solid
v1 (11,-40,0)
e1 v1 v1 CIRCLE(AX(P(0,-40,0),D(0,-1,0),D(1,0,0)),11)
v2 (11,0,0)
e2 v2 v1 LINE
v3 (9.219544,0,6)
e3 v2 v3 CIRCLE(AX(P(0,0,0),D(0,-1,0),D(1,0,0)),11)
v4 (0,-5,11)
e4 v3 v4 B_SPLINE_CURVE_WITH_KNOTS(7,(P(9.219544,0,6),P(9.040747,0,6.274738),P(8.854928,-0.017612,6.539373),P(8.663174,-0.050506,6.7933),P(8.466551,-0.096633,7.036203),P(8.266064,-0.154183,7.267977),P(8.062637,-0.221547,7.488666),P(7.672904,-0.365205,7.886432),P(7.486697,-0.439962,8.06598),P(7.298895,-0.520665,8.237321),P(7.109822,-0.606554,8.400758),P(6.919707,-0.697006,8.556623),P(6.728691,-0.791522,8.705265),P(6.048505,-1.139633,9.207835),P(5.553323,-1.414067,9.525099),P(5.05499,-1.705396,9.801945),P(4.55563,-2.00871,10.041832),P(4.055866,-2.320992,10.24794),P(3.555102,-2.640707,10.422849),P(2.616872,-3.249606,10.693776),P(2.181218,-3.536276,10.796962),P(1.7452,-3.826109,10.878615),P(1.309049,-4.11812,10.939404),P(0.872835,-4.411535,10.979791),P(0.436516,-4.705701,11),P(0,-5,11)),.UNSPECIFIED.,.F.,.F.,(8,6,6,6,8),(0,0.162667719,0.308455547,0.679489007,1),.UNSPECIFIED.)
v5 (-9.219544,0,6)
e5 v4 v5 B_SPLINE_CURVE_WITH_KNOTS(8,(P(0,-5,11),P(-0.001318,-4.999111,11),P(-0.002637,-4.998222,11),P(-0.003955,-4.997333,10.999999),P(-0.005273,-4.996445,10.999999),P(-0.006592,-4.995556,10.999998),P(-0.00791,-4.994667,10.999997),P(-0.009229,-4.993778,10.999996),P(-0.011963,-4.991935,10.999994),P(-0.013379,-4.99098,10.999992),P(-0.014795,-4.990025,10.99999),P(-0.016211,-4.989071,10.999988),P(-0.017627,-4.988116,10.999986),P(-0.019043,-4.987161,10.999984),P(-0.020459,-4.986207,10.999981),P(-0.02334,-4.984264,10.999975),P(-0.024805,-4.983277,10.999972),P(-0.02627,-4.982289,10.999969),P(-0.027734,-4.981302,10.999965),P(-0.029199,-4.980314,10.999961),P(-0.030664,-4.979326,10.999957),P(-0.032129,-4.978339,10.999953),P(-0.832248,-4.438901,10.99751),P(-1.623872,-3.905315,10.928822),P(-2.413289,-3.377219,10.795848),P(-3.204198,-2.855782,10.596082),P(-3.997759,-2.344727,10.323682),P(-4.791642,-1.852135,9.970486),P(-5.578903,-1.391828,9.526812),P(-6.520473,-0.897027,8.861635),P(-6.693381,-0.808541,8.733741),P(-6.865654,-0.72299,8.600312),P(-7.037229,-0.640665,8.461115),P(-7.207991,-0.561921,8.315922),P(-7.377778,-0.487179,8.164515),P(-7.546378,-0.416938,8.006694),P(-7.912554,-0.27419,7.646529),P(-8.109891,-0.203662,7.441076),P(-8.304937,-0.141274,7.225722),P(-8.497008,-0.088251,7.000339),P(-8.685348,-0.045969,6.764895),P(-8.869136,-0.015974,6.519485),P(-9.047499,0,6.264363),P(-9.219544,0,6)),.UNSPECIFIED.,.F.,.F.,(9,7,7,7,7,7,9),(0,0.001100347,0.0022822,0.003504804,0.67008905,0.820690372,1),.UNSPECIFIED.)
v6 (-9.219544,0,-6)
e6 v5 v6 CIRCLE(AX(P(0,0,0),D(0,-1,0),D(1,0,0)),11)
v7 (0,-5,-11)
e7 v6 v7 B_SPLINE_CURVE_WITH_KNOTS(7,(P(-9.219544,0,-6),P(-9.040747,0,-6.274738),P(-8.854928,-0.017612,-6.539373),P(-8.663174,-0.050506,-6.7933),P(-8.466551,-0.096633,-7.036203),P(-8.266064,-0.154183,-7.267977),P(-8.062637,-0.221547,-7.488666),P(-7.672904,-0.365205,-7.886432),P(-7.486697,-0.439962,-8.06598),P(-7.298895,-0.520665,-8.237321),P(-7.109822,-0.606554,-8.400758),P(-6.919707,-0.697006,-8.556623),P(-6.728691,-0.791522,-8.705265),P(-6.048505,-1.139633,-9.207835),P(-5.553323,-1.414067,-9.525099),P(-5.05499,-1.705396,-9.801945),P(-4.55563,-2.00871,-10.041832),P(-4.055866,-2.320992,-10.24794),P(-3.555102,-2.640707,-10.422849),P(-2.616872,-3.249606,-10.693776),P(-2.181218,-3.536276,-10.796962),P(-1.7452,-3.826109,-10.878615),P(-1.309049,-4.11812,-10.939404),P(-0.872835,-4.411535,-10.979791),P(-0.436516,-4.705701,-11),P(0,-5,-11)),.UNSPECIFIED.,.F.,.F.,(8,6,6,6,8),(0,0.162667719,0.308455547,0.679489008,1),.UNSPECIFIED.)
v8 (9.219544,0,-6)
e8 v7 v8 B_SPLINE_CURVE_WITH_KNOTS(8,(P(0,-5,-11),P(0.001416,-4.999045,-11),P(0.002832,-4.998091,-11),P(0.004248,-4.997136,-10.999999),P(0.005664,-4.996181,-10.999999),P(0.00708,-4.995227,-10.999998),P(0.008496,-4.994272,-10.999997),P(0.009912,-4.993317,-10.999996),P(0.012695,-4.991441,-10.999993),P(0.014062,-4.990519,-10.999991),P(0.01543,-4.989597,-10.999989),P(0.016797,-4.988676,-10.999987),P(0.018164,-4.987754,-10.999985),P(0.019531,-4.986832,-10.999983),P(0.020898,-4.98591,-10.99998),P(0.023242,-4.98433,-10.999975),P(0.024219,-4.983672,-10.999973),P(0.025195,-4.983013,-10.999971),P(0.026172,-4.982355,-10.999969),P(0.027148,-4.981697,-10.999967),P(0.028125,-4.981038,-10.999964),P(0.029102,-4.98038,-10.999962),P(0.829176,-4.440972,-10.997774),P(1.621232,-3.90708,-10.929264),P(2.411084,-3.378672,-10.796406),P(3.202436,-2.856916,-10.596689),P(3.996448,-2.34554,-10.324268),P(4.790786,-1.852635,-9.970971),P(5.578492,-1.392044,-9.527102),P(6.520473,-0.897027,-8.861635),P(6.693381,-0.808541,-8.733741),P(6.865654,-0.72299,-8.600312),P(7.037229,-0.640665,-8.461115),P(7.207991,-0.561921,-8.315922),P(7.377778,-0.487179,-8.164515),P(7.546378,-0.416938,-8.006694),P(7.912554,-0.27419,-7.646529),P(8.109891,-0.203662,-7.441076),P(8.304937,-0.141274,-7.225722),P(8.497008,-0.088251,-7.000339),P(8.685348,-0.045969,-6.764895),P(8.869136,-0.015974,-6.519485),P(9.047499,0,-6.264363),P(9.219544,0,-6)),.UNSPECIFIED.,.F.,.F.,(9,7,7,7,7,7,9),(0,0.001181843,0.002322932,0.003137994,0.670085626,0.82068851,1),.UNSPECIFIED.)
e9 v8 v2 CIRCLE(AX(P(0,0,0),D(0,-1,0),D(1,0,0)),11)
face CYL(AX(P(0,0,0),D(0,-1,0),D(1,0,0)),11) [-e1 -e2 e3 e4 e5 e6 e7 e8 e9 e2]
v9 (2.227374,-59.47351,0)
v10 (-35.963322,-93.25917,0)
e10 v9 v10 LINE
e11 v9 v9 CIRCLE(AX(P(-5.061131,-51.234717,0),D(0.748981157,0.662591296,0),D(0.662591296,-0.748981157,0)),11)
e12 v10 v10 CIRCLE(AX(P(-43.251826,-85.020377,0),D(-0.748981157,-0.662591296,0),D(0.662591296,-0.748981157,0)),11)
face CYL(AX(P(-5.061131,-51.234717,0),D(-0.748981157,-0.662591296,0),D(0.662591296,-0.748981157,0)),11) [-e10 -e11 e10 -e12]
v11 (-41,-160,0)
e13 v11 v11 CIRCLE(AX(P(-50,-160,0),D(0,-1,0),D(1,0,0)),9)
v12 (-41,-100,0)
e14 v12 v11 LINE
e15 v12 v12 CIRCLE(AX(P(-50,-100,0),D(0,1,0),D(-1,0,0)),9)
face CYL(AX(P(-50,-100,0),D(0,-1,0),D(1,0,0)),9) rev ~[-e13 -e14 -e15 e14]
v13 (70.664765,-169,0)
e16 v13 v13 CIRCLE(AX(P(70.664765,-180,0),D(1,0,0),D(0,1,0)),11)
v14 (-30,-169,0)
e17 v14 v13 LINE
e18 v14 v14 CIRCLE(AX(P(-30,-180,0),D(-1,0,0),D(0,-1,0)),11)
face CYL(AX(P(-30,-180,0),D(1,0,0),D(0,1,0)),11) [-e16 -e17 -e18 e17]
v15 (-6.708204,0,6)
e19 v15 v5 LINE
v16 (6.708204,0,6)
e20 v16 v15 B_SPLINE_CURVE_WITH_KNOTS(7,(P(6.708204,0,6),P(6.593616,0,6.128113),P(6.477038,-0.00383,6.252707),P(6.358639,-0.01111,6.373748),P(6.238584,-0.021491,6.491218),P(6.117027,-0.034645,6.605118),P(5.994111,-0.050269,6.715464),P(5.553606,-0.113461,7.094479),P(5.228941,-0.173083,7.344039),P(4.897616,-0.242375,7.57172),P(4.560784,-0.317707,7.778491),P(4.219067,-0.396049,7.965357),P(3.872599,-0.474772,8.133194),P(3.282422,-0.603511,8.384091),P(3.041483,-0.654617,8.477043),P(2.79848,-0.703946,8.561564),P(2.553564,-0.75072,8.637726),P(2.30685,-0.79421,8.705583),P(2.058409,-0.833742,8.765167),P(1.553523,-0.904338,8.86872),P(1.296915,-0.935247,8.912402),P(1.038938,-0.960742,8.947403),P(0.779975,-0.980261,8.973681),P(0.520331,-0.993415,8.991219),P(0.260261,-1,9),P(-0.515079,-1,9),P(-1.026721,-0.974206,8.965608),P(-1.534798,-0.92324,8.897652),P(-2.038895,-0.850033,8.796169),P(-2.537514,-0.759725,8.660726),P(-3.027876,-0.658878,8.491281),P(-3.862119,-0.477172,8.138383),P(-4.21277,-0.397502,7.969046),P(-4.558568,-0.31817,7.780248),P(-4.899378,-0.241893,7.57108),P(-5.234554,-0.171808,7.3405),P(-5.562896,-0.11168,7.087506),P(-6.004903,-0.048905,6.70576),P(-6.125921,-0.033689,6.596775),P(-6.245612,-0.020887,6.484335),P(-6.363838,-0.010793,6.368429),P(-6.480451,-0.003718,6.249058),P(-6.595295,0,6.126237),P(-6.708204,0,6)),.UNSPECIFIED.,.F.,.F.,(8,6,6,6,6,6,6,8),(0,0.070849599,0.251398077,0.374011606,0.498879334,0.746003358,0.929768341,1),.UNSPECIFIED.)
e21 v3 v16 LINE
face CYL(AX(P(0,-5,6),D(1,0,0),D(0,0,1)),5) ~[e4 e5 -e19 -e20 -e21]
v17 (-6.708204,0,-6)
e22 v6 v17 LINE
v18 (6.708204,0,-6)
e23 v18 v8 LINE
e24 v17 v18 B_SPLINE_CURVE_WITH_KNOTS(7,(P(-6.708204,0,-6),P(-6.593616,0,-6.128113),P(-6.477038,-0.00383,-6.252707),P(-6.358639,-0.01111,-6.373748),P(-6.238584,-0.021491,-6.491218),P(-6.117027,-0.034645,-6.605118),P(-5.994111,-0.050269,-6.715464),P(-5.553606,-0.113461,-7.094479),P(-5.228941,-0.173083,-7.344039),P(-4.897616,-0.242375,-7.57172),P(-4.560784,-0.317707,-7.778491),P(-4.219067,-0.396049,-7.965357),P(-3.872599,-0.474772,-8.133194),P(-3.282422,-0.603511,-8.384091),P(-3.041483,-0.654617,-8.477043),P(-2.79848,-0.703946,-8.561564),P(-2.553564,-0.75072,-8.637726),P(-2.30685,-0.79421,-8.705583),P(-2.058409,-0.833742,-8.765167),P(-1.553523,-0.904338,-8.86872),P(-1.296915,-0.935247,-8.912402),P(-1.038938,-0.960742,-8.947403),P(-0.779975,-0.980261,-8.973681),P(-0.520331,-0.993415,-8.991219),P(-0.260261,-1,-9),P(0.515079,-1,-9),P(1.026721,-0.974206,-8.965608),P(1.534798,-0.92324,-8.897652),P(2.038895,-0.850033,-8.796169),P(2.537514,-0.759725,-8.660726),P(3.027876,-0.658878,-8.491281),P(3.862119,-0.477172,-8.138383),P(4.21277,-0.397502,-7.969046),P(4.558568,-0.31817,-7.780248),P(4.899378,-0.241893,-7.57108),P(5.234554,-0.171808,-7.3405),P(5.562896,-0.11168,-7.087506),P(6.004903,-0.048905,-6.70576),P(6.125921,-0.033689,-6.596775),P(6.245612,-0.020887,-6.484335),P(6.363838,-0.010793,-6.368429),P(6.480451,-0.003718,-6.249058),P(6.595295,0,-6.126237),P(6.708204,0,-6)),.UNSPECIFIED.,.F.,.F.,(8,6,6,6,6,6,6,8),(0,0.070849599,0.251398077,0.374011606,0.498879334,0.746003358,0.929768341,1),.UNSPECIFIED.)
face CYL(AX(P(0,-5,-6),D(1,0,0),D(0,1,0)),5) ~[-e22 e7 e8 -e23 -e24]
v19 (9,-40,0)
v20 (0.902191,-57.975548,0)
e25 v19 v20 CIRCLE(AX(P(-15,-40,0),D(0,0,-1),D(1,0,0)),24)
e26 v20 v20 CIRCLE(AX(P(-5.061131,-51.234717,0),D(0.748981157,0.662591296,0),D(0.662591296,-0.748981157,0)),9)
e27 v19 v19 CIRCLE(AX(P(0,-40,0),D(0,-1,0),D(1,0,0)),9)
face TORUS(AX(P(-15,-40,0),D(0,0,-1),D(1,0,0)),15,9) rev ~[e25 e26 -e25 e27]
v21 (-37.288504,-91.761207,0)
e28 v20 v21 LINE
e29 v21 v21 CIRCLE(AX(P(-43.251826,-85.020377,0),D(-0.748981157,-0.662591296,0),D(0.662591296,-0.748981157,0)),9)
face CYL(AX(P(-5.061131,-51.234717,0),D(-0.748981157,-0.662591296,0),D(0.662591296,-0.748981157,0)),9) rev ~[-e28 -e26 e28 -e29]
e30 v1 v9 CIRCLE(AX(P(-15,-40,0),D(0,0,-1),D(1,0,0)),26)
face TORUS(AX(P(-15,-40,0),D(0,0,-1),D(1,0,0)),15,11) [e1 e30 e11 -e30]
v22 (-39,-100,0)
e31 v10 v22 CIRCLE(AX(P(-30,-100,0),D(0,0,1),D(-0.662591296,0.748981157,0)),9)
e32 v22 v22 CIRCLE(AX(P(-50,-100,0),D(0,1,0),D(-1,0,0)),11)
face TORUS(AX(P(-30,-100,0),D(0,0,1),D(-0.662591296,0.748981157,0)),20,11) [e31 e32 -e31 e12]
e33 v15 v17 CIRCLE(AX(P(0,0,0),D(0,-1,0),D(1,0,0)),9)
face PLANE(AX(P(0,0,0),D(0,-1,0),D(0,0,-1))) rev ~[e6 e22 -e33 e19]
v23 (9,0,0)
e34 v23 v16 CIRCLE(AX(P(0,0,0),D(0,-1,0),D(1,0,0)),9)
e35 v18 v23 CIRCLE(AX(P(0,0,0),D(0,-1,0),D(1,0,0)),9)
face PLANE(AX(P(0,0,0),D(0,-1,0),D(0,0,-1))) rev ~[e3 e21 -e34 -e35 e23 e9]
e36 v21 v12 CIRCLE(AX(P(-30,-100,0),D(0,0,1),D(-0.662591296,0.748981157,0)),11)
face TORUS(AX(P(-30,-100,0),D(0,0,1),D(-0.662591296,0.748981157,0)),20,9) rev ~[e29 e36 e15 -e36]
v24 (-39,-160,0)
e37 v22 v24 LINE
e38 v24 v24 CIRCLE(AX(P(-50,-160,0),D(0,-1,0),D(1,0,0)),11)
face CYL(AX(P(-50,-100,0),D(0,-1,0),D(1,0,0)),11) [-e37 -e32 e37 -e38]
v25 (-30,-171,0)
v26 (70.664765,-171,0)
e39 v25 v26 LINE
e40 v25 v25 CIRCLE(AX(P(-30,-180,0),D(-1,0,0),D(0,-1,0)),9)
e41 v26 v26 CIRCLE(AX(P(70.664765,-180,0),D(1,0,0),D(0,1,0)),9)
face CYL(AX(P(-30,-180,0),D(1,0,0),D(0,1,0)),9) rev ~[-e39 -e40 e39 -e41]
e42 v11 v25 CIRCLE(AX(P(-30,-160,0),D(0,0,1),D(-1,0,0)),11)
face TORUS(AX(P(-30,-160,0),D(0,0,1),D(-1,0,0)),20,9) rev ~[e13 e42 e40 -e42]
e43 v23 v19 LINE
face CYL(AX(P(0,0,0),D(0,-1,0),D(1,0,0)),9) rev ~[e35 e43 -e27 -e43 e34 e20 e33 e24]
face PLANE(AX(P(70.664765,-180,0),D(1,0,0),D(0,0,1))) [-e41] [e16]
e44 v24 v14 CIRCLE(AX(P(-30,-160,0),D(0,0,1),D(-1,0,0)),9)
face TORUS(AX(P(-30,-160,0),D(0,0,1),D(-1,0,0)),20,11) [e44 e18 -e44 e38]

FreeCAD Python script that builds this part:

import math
import FreeCAD as App
import Part
import Sketcher

V = App.Vector

doc = App.newDocument("Part")
body = doc.addObject("PartDesign::Body", "Body")

sketch1 = body.newObject("Sketcher::SketchObject", "Sketch")
sketch1.AttachmentSupport = (doc.getObject("XZ_Plane"), [""])
sketch1.MapMode = "FlatFace"
sketch1.addGeometry(Part.Circle(V(0, 0, 0), V(0, 0, 1), 11), False)
sketch1.addGeometry(Part.Circle(V(0, 0, 0), V(0, 0, 1), 9), False)
sketch1.addConstraint(Sketcher.Constraint("Coincident", 0, 3, -1, 1))
sketch1.addConstraint(Sketcher.Constraint("Coincident", 1, 3, -1, 1))
sketch1.addConstraint(Sketcher.Constraint("Diameter", 0, 22.0))
sketch1.addConstraint(Sketcher.Constraint("Diameter", 1, 18.0))

sketch2 = body.newObject("Sketcher::SketchObject", "Sketch001")
sketch2.AttachmentSupport = (doc.getObject("XY_Plane"), [""])
sketch2.MapMode = "FlatFace"
sketch2.addGeometry(Part.LineSegment(V(0, 0, 0), V(0, -40, 0)), False)
sketch2.addGeometry(Part.ArcOfCircle(Part.Circle(V(-15, -40, 0), V(0, 0, 1), 15), math.radians(-49), math.radians(0)), False)
sketch2.addGeometry(Part.LineSegment(V(-5, -51, 0), V(-43, -85, 0)), False)
sketch2.addGeometry(Part.ArcOfCircle(Part.Circle(V(-30, -100, 0), V(0, 0, 1), 20), math.radians(131), math.radians(180)), False)
sketch2.addGeometry(Part.LineSegment(V(-50, -100, 0), V(-50, -160, 0)), False)
sketch2.addGeometry(Part.ArcOfCircle(Part.Circle(V(-30, -160, 0), V(0, 0, 1), 20), math.radians(180), math.radians(270)), False)
sketch2.addGeometry(Part.LineSegment(V(-30, -180, 0), V(71, -180, 0)), False)
sketch2.addConstraint(Sketcher.Constraint("Tangent", 0, 2, 1, 2))
sketch2.addConstraint(Sketcher.Constraint("Tangent", 1, 1, 2, 1))
sketch2.addConstraint(Sketcher.Constraint("Tangent", 2, 2, 3, 1))
sketch2.addConstraint(Sketcher.Constraint("Tangent", 3, 2, 4, 1))
sketch2.addConstraint(Sketcher.Constraint("Tangent", 4, 2, 5, 1))
sketch2.addConstraint(Sketcher.Constraint("Tangent", 5, 2, 6, 1))
sketch2.addConstraint(Sketcher.Constraint("Vertical", 0))
sketch2.addConstraint(Sketcher.Constraint("Vertical", 4))
sketch2.addConstraint(Sketcher.Constraint("Horizontal", 6))
sketch2.addConstraint(Sketcher.Constraint("Coincident", 0, 1, -1, 1))
sketch2.addConstraint(Sketcher.Constraint("Equal", 3, 5))
sketch2.addConstraint(Sketcher.Constraint("Radius", 1, 15.0))
sketch2.addConstraint(Sketcher.Constraint("Radius", 3, 20.0))
sketch2.addConstraint(Sketcher.Constraint("DistanceY", 0, 2, 0, 1, 40.0))
sketch2.addConstraint(Sketcher.Constraint("DistanceY", 4, 2, 4, 1, 60.0))
sketch2.addConstraint(Sketcher.Constraint("DistanceX", 3, 3, -1, 1, 30.0))
sketch2.addConstraint(Sketcher.Constraint("DistanceY", 3, 3, -1, 1, 100.0))
sketch2.addConstraint(Sketcher.Constraint("DistanceX", 6, 1, 6, 2, 100.664765))
doc.recompute()

additivepipe = body.newObject("PartDesign::AdditivePipe", "AdditivePipe")
additivepipe.Profile = sketch1
additivepipe.Spine = (sketch2, ["Edge1", "Edge2", "Edge3", "Edge4", "Edge5", "Edge6", "Edge7"])

sketch3 = body.newObject("Sketcher::SketchObject", "Sketch002")
sketch3.AttachmentSupport = (doc.getObject("YZ_Plane"), [""])
sketch3.MapMode = "FlatFace"
sketch3.addGeometry(Part.LineSegment(V(0, 6, 0), V(0, -6, 0)), False)
sketch3.addGeometry(Part.ArcOfCircle(Part.Circle(V(-5, -6, 0), V(0, 0, 1), 5), math.radians(-90), math.radians(0)), False)
sketch3.addGeometry(Part.LineSegment(V(-5, -11, 0), V(-6.3, -11, 0)), False)
sketch3.addGeometry(Part.LineSegment(V(-6.3, -11, 0), V(-6.3, -17, 0)), False)
sketch3.addGeometry(Part.LineSegment(V(-6.3, -17, 0), V(9.8, -17, 0)), False)
sketch3.addGeometry(Part.LineSegment(V(9.8, -17, 0), V(9.8, 17, 0)), False)
sketch3.addGeometry(Part.LineSegment(V(9.8, 17, 0), V(-6.3, 17, 0)), False)
sketch3.addGeometry(Part.LineSegment(V(-6.3, 17, 0), V(-6.3, 11, 0)), False)
sketch3.addGeometry(Part.LineSegment(V(-6.3, 11, 0), V(-5, 11, 0)), False)
sketch3.addGeometry(Part.ArcOfCircle(Part.Circle(V(-5, 6, 0), V(0, 0, 1), 5), math.radians(0), math.radians(90)), False)
sketch3.addConstraint(Sketcher.Constraint("Tangent", 0, 2, 1, 2))
sketch3.addConstraint(Sketcher.Constraint("Tangent", 1, 1, 2, 1))
sketch3.addConstraint(Sketcher.Constraint("Coincident", 2, 2, 3, 1))
sketch3.addConstraint(Sketcher.Constraint("Coincident", 3, 2, 4, 1))
sketch3.addConstraint(Sketcher.Constraint("Coincident", 4, 2, 5, 1))
sketch3.addConstraint(Sketcher.Constraint("Coincident", 5, 2, 6, 1))
sketch3.addConstraint(Sketcher.Constraint("Coincident", 6, 2, 7, 1))
sketch3.addConstraint(Sketcher.Constraint("Coincident", 7, 2, 8, 1))
sketch3.addConstraint(Sketcher.Constraint("Tangent", 8, 2, 9, 2))
sketch3.addConstraint(Sketcher.Constraint("Tangent", 9, 1, 0, 1))
sketch3.addConstraint(Sketcher.Constraint("Vertical", 0))
sketch3.addConstraint(Sketcher.Constraint("Horizontal", 2))
sketch3.addConstraint(Sketcher.Constraint("Vertical", 3))
sketch3.addConstraint(Sketcher.Constraint("Horizontal", 4))
sketch3.addConstraint(Sketcher.Constraint("Vertical", 5))
sketch3.addConstraint(Sketcher.Constraint("Horizontal", 6))
sketch3.addConstraint(Sketcher.Constraint("Vertical", 7))
sketch3.addConstraint(Sketcher.Constraint("Horizontal", 8))
sketch3.addConstraint(Sketcher.Constraint("Equal", 1, 9))
sketch3.addConstraint(Sketcher.Constraint("Symmetric", 0, 2, 9, 1, -1, 1))
sketch3.addConstraint(Sketcher.Constraint("Symmetric", 3, 2, 6, 2, -1))
sketch3.addConstraint(Sketcher.Constraint("Radius", 1, 5.0))
sketch3.addConstraint(Sketcher.Constraint("DistanceY", 0, 2, 0, 1, 12.0))
sketch3.addConstraint(Sketcher.Constraint("DistanceX", 2, 2, 2, 1, 1.28094))
sketch3.addConstraint(Sketcher.Constraint("DistanceX", 4, 1, 4, 2, 16.094131))
sketch3.addConstraint(Sketcher.Constraint("DistanceY", 3, 2, 3, 1, 6.011339))
pocket1 = body.newObject("PartDesign::Pocket", "Pocket")
pocket1.Profile = sketch3
pocket1.Length = 50
pocket1.Midplane = True

doc.recompute()
